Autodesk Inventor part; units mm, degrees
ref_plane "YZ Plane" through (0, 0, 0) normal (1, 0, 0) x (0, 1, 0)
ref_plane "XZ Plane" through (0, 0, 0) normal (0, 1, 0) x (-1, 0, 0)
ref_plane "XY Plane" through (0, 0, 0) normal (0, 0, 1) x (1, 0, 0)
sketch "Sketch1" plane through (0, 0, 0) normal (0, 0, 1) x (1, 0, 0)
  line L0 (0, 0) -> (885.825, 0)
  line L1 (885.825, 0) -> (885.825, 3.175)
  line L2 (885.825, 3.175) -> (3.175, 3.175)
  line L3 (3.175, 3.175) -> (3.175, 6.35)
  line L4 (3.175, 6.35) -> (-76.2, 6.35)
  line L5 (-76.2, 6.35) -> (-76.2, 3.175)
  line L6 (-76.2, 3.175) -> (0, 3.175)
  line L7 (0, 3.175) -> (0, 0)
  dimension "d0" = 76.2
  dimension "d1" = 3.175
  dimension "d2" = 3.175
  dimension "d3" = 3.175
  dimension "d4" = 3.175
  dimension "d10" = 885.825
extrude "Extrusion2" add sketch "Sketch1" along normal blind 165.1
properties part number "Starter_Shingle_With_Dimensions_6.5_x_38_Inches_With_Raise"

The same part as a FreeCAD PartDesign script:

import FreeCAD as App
import Part
import Sketcher
from FreeCAD import Vector
Q = App.Units.Quantity


def add_polygon(sketch, points):
    """Adds a closed chain of lines whose ends are joined by coincident constraints."""
    first, n = sketch.GeometryCount, len(points)
    for a, b in zip(points, points[1:] + points[:1]):
        sketch.addGeometry(Part.LineSegment(App.Vector(*a, 0), App.Vector(*b, 0)), False)
    for i in range(n):
        sketch.addConstraint(Sketcher.Constraint("Coincident", first + i, 2, first + (i + 1) % n, 1))

doc = App.newDocument("Part")
body = doc.addObject("PartDesign::Body", "Body")

# Sketch on XY plane
sketch1 = body.newObject("Sketcher::SketchObject", "Sketch")
sketch1.AttachmentSupport = (doc.getObject("XY_Plane"), [""])
sketch1.MapMode = "FlatFace"
add_polygon(sketch1, [(0, 3.2), (0, 0), (885.8, 0), (885.8, 3.2), (3.2, 3.2), (3.2, 6.3), (-76.2, 6.3), (-76.2, 3.2)])  # lines 0-7
sketch1.addConstraint(Sketcher.Constraint("Vertical", 0))
sketch1.addConstraint(Sketcher.Constraint("Horizontal", 1))
sketch1.addConstraint(Sketcher.Constraint("Vertical", 2))
sketch1.addConstraint(Sketcher.Constraint("Horizontal", 3))
sketch1.addConstraint(Sketcher.Constraint("Vertical", 4))
sketch1.addConstraint(Sketcher.Constraint("Horizontal", 5))
sketch1.addConstraint(Sketcher.Constraint("Vertical", 6))
sketch1.addConstraint(Sketcher.Constraint("Horizontal", 7))
sketch1.addConstraint(Sketcher.Constraint("Coincident", 0, 2, -1, 1))
sketch1.addConstraint(Sketcher.Constraint("Horizontal", 3, 2, 6, 2))
sketch1.addConstraint(Sketcher.Constraint("Equal", 2, 4))
sketch1.addConstraint(Sketcher.Constraint("DistanceX", 7, 1, 7, 2, Q("3 in")))
sketch1.addConstraint(Sketcher.Constraint("DistanceX", 1, 1, 1, 2, Q("34.875 in")))
sketch1.addConstraint(Sketcher.Constraint("DistanceY", 0, 2, 0, 1, Q("0.125 in")))
sketch1.addConstraint(Sketcher.Constraint("DistanceX", -1, 1, 3, 2, Q("0.125 in")))
pad1 = body.newObject("PartDesign::Pad", "Pad")
pad1.Profile = sketch1
pad1.Length = Q("6.5 in")

doc.recompute()
